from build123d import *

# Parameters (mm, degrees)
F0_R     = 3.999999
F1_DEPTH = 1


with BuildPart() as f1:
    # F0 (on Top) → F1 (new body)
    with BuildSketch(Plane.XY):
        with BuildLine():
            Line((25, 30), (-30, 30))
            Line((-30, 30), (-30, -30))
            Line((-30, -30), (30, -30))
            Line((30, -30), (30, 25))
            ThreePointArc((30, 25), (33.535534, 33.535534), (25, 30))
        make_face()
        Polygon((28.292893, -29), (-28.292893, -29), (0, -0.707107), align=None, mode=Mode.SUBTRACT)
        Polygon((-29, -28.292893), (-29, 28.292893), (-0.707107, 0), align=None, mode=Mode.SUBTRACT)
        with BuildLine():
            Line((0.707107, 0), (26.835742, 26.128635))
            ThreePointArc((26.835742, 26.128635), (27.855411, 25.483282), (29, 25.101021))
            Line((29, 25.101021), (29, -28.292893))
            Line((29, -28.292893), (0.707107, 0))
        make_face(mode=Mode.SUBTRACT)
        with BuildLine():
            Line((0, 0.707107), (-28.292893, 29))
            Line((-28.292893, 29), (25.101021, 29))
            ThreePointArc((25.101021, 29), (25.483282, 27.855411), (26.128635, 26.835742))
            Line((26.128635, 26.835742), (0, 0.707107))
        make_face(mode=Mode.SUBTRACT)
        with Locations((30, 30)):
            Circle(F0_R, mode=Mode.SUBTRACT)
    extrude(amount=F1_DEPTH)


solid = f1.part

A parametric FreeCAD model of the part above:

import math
import FreeCAD as App
import Part
import Sketcher

doc = App.newDocument("Part")
body = doc.addObject("PartDesign::Body", "Body")

# Sketch on XY plane
sketch1 = body.newObject("Sketcher::SketchObject", "Sketch")
sketch1.AttachmentSupport = (doc.getObject("XY_Plane"), [""])
sketch1.MapMode = "FlatFace"
sketch1.addGeometry([
    Part.LineSegment(App.Vector(25, 30, 0), App.Vector(-30, 30, 0)),  # 0
    Part.LineSegment(App.Vector(-30, 30, 0), App.Vector(-30, -30, 0)),  # 1
    Part.LineSegment(App.Vector(-30, -30, 0), App.Vector(30, -30, 0)),  # 2
    Part.LineSegment(App.Vector(30, -30, 0), App.Vector(30, 25, 0)),  # 3
    Part.ArcOfCircle(Part.Circle(App.Vector(30, 30, 0), App.Vector(0, 0, 1), 5), math.radians(-90), math.radians(180)),  # 4
    Part.LineSegment(App.Vector(0, -0.7, 0), App.Vector(28.3, -29, 0)),  # 5
    Part.LineSegment(App.Vector(28.3, -29, 0), App.Vector(-28.3, -29, 0)),  # 6
    Part.LineSegment(App.Vector(-28.3, -29, 0), App.Vector(0, -0.7, 0)),  # 7
    Part.LineSegment(App.Vector(-0.7, 0, 0), App.Vector(-29, -28.3, 0)),  # 8
    Part.LineSegment(App.Vector(-29, -28.3, 0), App.Vector(-29, 28.3, 0)),  # 9
    Part.LineSegment(App.Vector(-29, 28.3, 0), App.Vector(-0.7, 0, 0)),  # 10
    Part.LineSegment(App.Vector(29, -28.3, 0), App.Vector(0.7, 0, 0)),  # 11
    Part.LineSegment(App.Vector(0.7, 0, 0), App.Vector(26.8, 26.1, 0)),  # 12
    Part.ArcOfCircle(Part.Circle(App.Vector(30, 30, 0), App.Vector(0, 0, 1), 5), math.radians(-129), math.radians(-102)),  # 13
    Part.LineSegment(App.Vector(29, 25.1, 0), App.Vector(29, -28.3, 0)),  # 14
    Part.LineSegment(App.Vector(26.1, 26.8, 0), App.Vector(0, 0.7, 0)),  # 15
    Part.LineSegment(App.Vector(0, 0.7, 0), App.Vector(-28.3, 29, 0)),  # 16
    Part.LineSegment(App.Vector(-28.3, 29, 0), App.Vector(25.1, 29, 0)),  # 17
    Part.ArcOfCircle(Part.Circle(App.Vector(30, 30, 0), App.Vector(0, 0, 1), 5), math.radians(-168), math.radians(-141)),  # 18
    Part.Circle(App.Vector(30, 30, 0), App.Vector(0, 0, 1), 4),  # 19
], False)
sketch1.addConstraint([
    Sketcher.Constraint("Coincident", 0, 2, 1, 1),
    Sketcher.Constraint("Coincident", 1, 2, 2, 1),
    Sketcher.Constraint("Coincident", 2, 2, 3, 1),
    Sketcher.Constraint("Coincident", 3, 2, 4, 1),
    Sketcher.Constraint("Coincident", 4, 2, 0, 1),
    Sketcher.Constraint("Coincident", 5, 2, 6, 1),
    Sketcher.Constraint("Coincident", 6, 2, 7, 1),
    Sketcher.Constraint("Coincident", 7, 2, 5, 1),
    Sketcher.Constraint("Coincident", 8, 2, 9, 1),
    Sketcher.Constraint("Coincident", 9, 2, 10, 1),
    Sketcher.Constraint("Coincident", 10, 2, 8, 1),
    Sketcher.Constraint("Coincident", 11, 2, 12, 1),
    Sketcher.Constraint("Coincident", 12, 2, 13, 1),
    Sketcher.Constraint("Coincident", 13, 2, 14, 1),
    Sketcher.Constraint("Coincident", 14, 2, 11, 1),
    Sketcher.Constraint("Coincident", 15, 2, 16, 1),
    Sketcher.Constraint("Coincident", 16, 2, 17, 1),
    Sketcher.Constraint("Coincident", 17, 2, 18, 1),
    Sketcher.Constraint("Coincident", 18, 2, 15, 1),
    Sketcher.Constraint("Horizontal", 0),
    Sketcher.Constraint("Vertical", 1),
    Sketcher.Constraint("Horizontal", 2),
    Sketcher.Constraint("Vertical", 3),
    Sketcher.Constraint("Horizontal", 6),
    Sketcher.Constraint("Vertical", 9),
    Sketcher.Constraint("Vertical", 14),
    Sketcher.Constraint("Horizontal", 17),
    Sketcher.Constraint("Coincident", 19, 3, 4, 3),
    Sketcher.Constraint("Equal", 13, 18),
    Sketcher.Constraint("Symmetric", 0, 2, 2, 2, -1, 1),
    Sketcher.Constraint("Symmetric", 10, 2, 11, 2, -1, 1),
    Sketcher.Constraint("Symmetric", 9, 2, 14, 2, -1, 1),
    Sketcher.Constraint("Symmetric", 7, 2, 15, 2, -1, 1),
    Sketcher.Constraint("Symmetric", 5, 2, 16, 2, -1, 1),
    Sketcher.Constraint("PointOnObject", 7, 2, -2),
    Sketcher.Constraint("PointOnObject", 10, 2, -1),
    Sketcher.Constraint("Perpendicular", 5, 7),
    Sketcher.Constraint("Parallel", 7, 8),
    Sketcher.Constraint("Perpendicular", 8, 10),
    Sketcher.Constraint("Perpendicular", 11, 12),
    Sketcher.Constraint("Parallel", 12, 15),
    Sketcher.Constraint("Horizontal", 19, 3, 0, 2),
    Sketcher.Constraint("Horizontal", 8, 2, 14, 2),
    Sketcher.Constraint("Vertical", 19, 3, 2, 2),
    Sketcher.Constraint("Equal", 2, 1),
    Sketcher.Constraint("Equal", 6, 9),
    Sketcher.Constraint("Equal", 17, 14),
    Sketcher.Constraint("Equal", 12, 15),
    Sketcher.Constraint("Radius", 4, 5.0),
    Sketcher.Constraint("DistanceX", 0, 2, 0, 1, 55.0),
    Sketcher.Constraint("DistanceY", 5, 2, -1, 1, 29.0),
    Sketcher.Constraint("DistanceX", 8, 2, -1, 1, 29.0),
    Sketcher.Constraint("Diameter", 19, 7.999998),
    Sketcher.Constraint("Radius", 13, 4.999973),
    Sketcher.Constraint("Distance", 12, 36.95147),
    Sketcher.Constraint("DistanceX", 6, 2, 6, 1, 56.585786),
    Sketcher.Constraint("DistanceX", 17, 1, 17, 2, 53.393914),
])
pad1 = body.newObject("PartDesign::Pad", "Pad")
pad1.Profile = sketch1
pad1.Length = 1

doc.recompute()
